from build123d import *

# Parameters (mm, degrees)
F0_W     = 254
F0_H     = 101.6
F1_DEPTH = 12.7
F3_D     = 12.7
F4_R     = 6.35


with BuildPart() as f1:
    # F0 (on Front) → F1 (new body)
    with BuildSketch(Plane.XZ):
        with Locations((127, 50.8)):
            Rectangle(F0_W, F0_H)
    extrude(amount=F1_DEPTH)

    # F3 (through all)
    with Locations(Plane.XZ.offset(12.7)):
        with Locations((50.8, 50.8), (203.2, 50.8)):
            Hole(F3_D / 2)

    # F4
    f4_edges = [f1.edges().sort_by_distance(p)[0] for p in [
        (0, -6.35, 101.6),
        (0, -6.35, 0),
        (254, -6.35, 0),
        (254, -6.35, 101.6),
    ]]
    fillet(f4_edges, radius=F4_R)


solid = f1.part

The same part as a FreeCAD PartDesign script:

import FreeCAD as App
import Part
import Sketcher
Q = App.Units.Quantity


def edges_at(feature, points):
    """Names of the edges that pass closest to the given points."""
    edges = feature.Shape.Edges
    near = lambda p: min(range(len(edges)), key=lambda i: edges[i].distToShape(Part.Vertex(*p))[0])
    return sorted({f"Edge{near(p) + 1}" for p in points})

doc = App.newDocument("Part")
params = doc.addObject("Spreadsheet::Sheet", "Params")
for row, (alias, value) in enumerate([
    ("sketch1_width", "10 in"),
    ("sketch1_height", "4 in"),
    ("pad1_length", "0.5 in"),
    ("sketch2_diameter", "0.5 in"),
    ("hole_diameter", "0.5 in"),
    ("fillet_radius", "0.25 in"),
], start=1):
    params.set(f"A{row}", alias)
    params.set(f"B{row}", "=" + value)
    params.setAlias(f"B{row}", alias)

body = doc.addObject("PartDesign::Body", "Body")

# Sketch on XZ plane
sketch1 = body.newObject("Sketcher::SketchObject", "Sketch")
sketch1.AttachmentSupport = (doc.getObject("XZ_Plane"), [""])
sketch1.MapMode = "FlatFace"
sketch1.addGeometry([
    Part.LineSegment(App.Vector(0, 102, 0), App.Vector(0, 0, 0)),
    Part.LineSegment(App.Vector(0, 0, 0), App.Vector(254, 0, 0)),
    Part.LineSegment(App.Vector(254, 0, 0), App.Vector(254, 102, 0)),
    Part.LineSegment(App.Vector(254, 102, 0), App.Vector(0, 102, 0)),
], False)
sketch1.addConstraint([
    Sketcher.Constraint("Coincident", 0, 2, 1, 1),
    Sketcher.Constraint("Coincident", 1, 2, 2, 1),
    Sketcher.Constraint("Coincident", 2, 2, 3, 1),
    Sketcher.Constraint("Coincident", 3, 2, 0, 1),
    Sketcher.Constraint("Vertical", 0),
    Sketcher.Constraint("Horizontal", 1),
    Sketcher.Constraint("Vertical", 2),
    Sketcher.Constraint("Horizontal", 3),
    Sketcher.Constraint("Coincident", 0, 2, -1, 1),
    Sketcher.Constraint("DistanceX", 1, 1, 1, 2, Q("10 in")),
    Sketcher.Constraint("DistanceY", 0, 2, 0, 1, Q("4 in")),
])
sketch1.setExpression("Constraints[9]", "Params.sketch1_width")
sketch1.setExpression("Constraints[10]", "Params.sketch1_height")
pad1 = body.newObject("PartDesign::Pad", "Pad")
pad1.Profile = sketch1
pad1.setExpression("Length", "Params.pad1_length")

# Sketch on XZ plane
sketch2 = body.newObject("Sketcher::SketchObject", "Sketch001")
sketch2.AttachmentSupport = (doc.getObject("XZ_Plane"), [""])
sketch2.MapMode = "FlatFace"
sketch2.AttachmentOffset = App.Placement(App.Vector(0, 0, 0.5 * 25.4), App.Rotation())
sketch2.addGeometry([
    Part.Circle(App.Vector(51, 51, 0), App.Vector(0, 0, 1), 6),
    Part.Circle(App.Vector(203, 51, 0), App.Vector(0, 0, 1), 6),
], False)
sketch2.addConstraint([
    Sketcher.Constraint("Equal", 0, 1),
    Sketcher.Constraint("Horizontal", 0, 3, 1, 3),
    Sketcher.Constraint("Diameter", 0, Q("0.5 in")),
    Sketcher.Constraint("DistanceX", -1, 1, 0, 3, Q("2 in")),
    Sketcher.Constraint("DistanceY", -1, 1, 0, 3, Q("2 in")),
    Sketcher.Constraint("DistanceX", -1, 1, 1, 3, Q("8 in")),
])
sketch2.setExpression("Constraints[2]", "Params.sketch2_diameter")
doc.recompute()
hole = body.newObject("PartDesign::Hole", "Hole")
hole.Profile = sketch2
hole.ThreadType = "None"
hole.setExpression("Diameter", "Params.hole_diameter")
hole.DepthType = "ThroughAll"
doc.recompute()

fillet = body.newObject("PartDesign::Fillet", "Fillet")
fillet.Base = (hole, edges_at(hole, [
    (0, -6.35, 101.6),
    (0, -6.35, 0),
    (254, -6.35, 0),
    (254, -6.35, 101.6),
]))
fillet.setExpression("Radius", "Params.fillet_radius")

doc.recompute()
